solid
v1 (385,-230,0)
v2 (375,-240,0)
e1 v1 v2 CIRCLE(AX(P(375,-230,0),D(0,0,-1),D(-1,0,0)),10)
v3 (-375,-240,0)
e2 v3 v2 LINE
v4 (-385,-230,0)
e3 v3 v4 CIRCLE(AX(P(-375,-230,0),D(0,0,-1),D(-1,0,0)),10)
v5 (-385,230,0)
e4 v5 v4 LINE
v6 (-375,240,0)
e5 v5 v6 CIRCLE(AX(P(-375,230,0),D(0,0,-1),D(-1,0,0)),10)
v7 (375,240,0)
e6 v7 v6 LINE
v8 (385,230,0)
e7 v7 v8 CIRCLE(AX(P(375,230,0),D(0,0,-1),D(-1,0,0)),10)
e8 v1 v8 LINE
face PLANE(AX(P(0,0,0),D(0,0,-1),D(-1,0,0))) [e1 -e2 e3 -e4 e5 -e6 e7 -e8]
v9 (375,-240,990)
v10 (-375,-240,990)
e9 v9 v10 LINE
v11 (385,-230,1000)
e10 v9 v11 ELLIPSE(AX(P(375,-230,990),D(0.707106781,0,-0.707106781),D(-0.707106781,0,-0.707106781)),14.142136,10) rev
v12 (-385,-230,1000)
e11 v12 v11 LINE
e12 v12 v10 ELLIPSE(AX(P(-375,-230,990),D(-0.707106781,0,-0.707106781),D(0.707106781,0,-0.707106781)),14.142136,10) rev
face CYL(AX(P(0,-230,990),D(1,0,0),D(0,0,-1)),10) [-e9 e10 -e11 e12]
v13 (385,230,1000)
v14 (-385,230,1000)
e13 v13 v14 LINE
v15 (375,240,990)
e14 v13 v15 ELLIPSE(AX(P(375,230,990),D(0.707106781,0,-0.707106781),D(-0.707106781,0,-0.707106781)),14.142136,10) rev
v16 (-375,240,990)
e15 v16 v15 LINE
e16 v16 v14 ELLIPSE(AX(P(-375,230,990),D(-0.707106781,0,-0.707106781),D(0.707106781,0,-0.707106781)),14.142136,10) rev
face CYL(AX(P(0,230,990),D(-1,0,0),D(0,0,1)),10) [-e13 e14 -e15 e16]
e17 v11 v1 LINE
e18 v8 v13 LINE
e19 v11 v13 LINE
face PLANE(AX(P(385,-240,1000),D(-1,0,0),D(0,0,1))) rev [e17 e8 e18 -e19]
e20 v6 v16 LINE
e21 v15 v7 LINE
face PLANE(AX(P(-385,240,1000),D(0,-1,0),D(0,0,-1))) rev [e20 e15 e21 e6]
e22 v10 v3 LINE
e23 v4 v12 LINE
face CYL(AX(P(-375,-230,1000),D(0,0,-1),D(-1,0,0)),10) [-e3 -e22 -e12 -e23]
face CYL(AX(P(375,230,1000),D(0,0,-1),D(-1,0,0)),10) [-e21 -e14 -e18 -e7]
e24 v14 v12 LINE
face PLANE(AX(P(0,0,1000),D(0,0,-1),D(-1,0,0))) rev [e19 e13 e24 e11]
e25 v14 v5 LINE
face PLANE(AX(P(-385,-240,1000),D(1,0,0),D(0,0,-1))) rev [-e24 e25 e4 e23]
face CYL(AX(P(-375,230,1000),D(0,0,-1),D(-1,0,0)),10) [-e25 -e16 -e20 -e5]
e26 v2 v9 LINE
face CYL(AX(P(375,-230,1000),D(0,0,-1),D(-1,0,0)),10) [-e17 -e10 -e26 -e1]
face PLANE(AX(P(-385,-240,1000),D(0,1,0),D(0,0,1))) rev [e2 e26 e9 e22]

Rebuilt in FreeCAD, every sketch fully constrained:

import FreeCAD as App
import Part
import Sketcher

V = App.Vector
Q = App.Units.Quantity


def edges_at(feature, points):
    """Names of the edges that pass closest to the given points."""
    edges = feature.Shape.Edges
    near = lambda p: min(range(len(edges)), key=lambda i: edges[i].distToShape(Part.Vertex(*p))[0])
    return sorted({f"Edge{near(p) + 1}" for p in points})


def add_polygon(sketch, points):
    """Adds a closed chain of lines whose ends are joined by coincident constraints."""
    first, n = sketch.GeometryCount, len(points)
    for a, b in zip(points, points[1:] + points[:1]):
        sketch.addGeometry(Part.LineSegment(App.Vector(*a, 0), App.Vector(*b, 0)), False)
    for i in range(n):
        sketch.addConstraint(Sketcher.Constraint("Coincident", first + i, 2, first + (i + 1) % n, 1))

doc = App.newDocument("Part")
params = doc.addObject("Spreadsheet::Sheet", "Params")
for row, (alias, value) in enumerate([
    ("sketch1_width", "770 mm"),
    ("sketch1_height", "480 mm"),
    ("pad1_length", "1000 mm"),
    ("fillet_radius", "10 mm"),
], start=1):
    params.set(f"A{row}", alias)
    params.set(f"B{row}", "=" + value)
    params.setAlias(f"B{row}", alias)

body = doc.addObject("PartDesign::Body", "Body")

sketch1 = body.newObject("Sketcher::SketchObject", "Sketch")
sketch1.AttachmentSupport = (doc.getObject("XY_Plane"), [""])
sketch1.MapMode = "FlatFace"
add_polygon(sketch1, [(-385, 240), (-385, -240), (385, -240), (385, 240)])
sketch1.addConstraint(Sketcher.Constraint("Vertical", 0))
sketch1.addConstraint(Sketcher.Constraint("Horizontal", 1))
sketch1.addConstraint(Sketcher.Constraint("Vertical", 2))
sketch1.addConstraint(Sketcher.Constraint("Horizontal", 3))
sketch1.addConstraint(Sketcher.Constraint("Symmetric", 0, 2, 2, 2, -1, 1))
sketch1.addConstraint(Sketcher.Constraint("DistanceX", 1, 1, 1, 2, Q("770 mm")))
sketch1.addConstraint(Sketcher.Constraint("DistanceY", 0, 2, 0, 1, Q("480 mm")))
sketch1.setExpression("Constraints[9]", "Params.sketch1_width")
sketch1.setExpression("Constraints[10]", "Params.sketch1_height")
pad1 = body.newObject("PartDesign::Pad", "Pad")
pad1.Profile = sketch1
pad1.setExpression("Length", "Params.pad1_length")
doc.recompute()

fillet = body.newObject("PartDesign::Fillet", "Fillet")
fillet.Base = (pad1, edges_at(pad1, [
    (0, -240, 1000),
    (0, 240, 1000),
    (385, -240, 500),
    (-385, -240, 500),
    (-385, 240, 500),
    (385, 240, 500),
]))
fillet.setExpression("Radius", "Params.fillet_radius")

doc.recompute()
